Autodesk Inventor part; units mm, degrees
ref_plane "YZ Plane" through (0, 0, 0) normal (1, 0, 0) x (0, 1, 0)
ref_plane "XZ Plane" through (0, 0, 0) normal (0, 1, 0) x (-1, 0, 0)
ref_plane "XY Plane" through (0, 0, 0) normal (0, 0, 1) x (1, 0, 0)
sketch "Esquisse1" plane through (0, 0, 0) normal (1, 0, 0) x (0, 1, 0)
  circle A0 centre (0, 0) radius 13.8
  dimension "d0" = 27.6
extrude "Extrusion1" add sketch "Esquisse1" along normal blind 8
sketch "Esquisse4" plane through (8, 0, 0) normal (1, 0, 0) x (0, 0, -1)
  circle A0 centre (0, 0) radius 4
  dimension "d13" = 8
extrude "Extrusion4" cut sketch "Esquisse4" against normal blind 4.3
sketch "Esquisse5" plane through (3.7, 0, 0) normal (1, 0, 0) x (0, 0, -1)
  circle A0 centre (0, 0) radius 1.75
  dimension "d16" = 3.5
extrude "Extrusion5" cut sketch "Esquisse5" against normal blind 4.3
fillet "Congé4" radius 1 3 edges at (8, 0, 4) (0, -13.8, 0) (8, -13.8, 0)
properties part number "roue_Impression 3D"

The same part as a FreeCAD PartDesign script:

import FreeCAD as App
import Part
import Sketcher

V = App.Vector


def edges_at(feature, points):
    """Names of the edges that pass closest to the given points."""
    edges = feature.Shape.Edges
    near = lambda p: min(range(len(edges)), key=lambda i: edges[i].distToShape(Part.Vertex(*p))[0])
    return sorted({f"Edge{near(p) + 1}" for p in points})

doc = App.newDocument("Part")
params = doc.addObject("Spreadsheet::Sheet", "Params")
for row, (alias, value) in enumerate([
    ("sketch1_diameter", "27.6 mm"),
    ("pad1_length", "8 mm"),
    ("sketch2_diameter", "8 mm"),
    ("pocket1_length", "4.3 mm"),
    ("sketch3_diameter", "3.5 mm"),
    ("pocket2_length", "4.3 mm"),
    ("fillet_radius", "1 mm"),
], start=1):
    params.set(f"A{row}", alias)
    params.set(f"B{row}", "=" + value)
    params.setAlias(f"B{row}", alias)

body = doc.addObject("PartDesign::Body", "Body")

sketch1 = body.newObject("Sketcher::SketchObject", "Sketch")
sketch1.AttachmentSupport = (doc.getObject("YZ_Plane"), [""])
sketch1.MapMode = "FlatFace"
sketch1.addGeometry(Part.Circle(V(0, 0, 0), V(0, 0, 1), 13.8), False)
sketch1.addConstraint(Sketcher.Constraint("Coincident", 0, 3, -1, 1))
sketch1.addConstraint(Sketcher.Constraint("Diameter", 0, 27.6))
sketch1.setExpression("Constraints[1]", "Params.sketch1_diameter")
pad1 = body.newObject("PartDesign::Pad", "Pad")
pad1.Profile = sketch1
pad1.setExpression("Length", "Params.pad1_length")

sketch2 = body.newObject("Sketcher::SketchObject", "Sketch001")
sketch2.AttachmentSupport = (doc.getObject("YZ_Plane"), [""])
sketch2.MapMode = "FlatFace"
sketch2.AttachmentOffset = App.Placement(V(0, 0, 8), App.Rotation())
sketch2.addGeometry(Part.Circle(V(0, 0, 0), V(0, 0, 1), 4), False)
sketch2.addConstraint(Sketcher.Constraint("Coincident", 0, 3, -1, 1))
sketch2.addConstraint(Sketcher.Constraint("Diameter", 0, 8.0))
sketch2.setExpression("Constraints[1]", "Params.sketch2_diameter")
pocket1 = body.newObject("PartDesign::Pocket", "Pocket")
pocket1.Profile = sketch2
pocket1.setExpression("Length", "Params.pocket1_length")

sketch3 = body.newObject("Sketcher::SketchObject", "Sketch002")
sketch3.AttachmentSupport = (doc.getObject("YZ_Plane"), [""])
sketch3.MapMode = "FlatFace"
sketch3.AttachmentOffset = App.Placement(V(0, 0, 3.7), App.Rotation())
sketch3.addGeometry(Part.Circle(V(0, 0, 0), V(0, 0, 1), 1.75), False)
sketch3.addConstraint(Sketcher.Constraint("Coincident", 0, 3, -1, 1))
sketch3.addConstraint(Sketcher.Constraint("Diameter", 0, 3.5))
sketch3.setExpression("Constraints[1]", "Params.sketch3_diameter")
pocket2 = body.newObject("PartDesign::Pocket", "Pocket001")
pocket2.Profile = sketch3
pocket2.setExpression("Length", "Params.pocket2_length")
doc.recompute()

fillet = body.newObject("PartDesign::Fillet", "Fillet")
fillet.Base = (pocket2, edges_at(pocket2, [(8, 0, 4), (0, -13.8, 0), (8, -13.8, 0)]))
fillet.setExpression("Radius", "Params.fillet_radius")

doc.recompute()
